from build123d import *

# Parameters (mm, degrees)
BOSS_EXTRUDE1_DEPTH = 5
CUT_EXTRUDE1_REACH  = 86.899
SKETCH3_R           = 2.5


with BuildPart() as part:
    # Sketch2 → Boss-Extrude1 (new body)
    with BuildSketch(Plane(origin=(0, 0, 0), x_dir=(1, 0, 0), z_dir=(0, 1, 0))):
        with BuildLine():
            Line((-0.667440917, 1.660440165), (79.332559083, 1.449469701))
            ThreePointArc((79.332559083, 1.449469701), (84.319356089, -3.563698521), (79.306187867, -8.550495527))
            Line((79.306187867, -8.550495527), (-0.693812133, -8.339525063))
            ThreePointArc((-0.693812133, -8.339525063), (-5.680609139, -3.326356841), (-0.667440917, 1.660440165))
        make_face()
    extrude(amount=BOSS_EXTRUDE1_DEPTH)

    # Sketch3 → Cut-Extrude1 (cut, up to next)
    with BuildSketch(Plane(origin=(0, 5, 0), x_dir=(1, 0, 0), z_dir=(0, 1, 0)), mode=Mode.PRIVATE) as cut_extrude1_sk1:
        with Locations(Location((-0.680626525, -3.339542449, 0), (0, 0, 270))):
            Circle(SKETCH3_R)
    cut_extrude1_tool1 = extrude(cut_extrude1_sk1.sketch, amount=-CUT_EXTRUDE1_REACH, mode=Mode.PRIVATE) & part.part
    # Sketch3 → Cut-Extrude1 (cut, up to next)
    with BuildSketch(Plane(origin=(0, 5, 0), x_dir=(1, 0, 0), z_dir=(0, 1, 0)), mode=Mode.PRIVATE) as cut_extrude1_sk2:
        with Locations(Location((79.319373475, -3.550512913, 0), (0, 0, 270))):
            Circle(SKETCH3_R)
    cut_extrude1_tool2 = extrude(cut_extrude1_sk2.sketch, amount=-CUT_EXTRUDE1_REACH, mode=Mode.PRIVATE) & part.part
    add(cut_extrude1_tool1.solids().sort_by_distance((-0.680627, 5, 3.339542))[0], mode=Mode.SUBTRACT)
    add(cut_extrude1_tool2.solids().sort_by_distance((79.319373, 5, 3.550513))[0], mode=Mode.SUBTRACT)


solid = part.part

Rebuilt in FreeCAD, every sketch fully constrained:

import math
import FreeCAD as App
import Part
import Sketcher

V = App.Vector
Q = App.Units.Quantity

doc = App.newDocument("Part")
params = doc.addObject("Spreadsheet::Sheet", "Params")
for row, (alias, value) in enumerate([
    ("sketch1_radius", "5 mm"),
    ("pad1_length", "5 mm"),
    ("sketch2_diameter", "5 mm"),
    ("sketch3_diameter", "5 mm"),
], start=1):
    params.set(f"A{row}", alias)
    params.set(f"B{row}", "=" + value)
    params.setAlias(f"B{row}", alias)

body = doc.addObject("PartDesign::Body", "Body")

# Sketch on XZ plane
sketch1 = body.newObject("Sketcher::SketchObject", "Sketch")
sketch1.AttachmentSupport = (doc.getObject("XZ_Plane"), [""])
sketch1.MapMode = "FlatFace"
sketch1.addGeometry(Part.LineSegment(V(79, -1, 0), V(-1, -2, 0)), False)
sketch1.addGeometry(Part.ArcOfCircle(Part.Circle(V(-1, 3, 0), V(0, 0, 1), 5), math.radians(90), math.radians(270)), False)
sketch1.addGeometry(Part.LineSegment(V(-1, 8, 0), V(79, 9, 0)), False)
sketch1.addGeometry(Part.ArcOfCircle(Part.Circle(V(79, 4, 0), V(0, 0, 1), 5), math.radians(-90), math.radians(90)), False)
sketch1.addConstraint(Sketcher.Constraint("Tangent", 0, 2, 1, 2))
sketch1.addConstraint(Sketcher.Constraint("Tangent", 1, 1, 2, 1))
sketch1.addConstraint(Sketcher.Constraint("Tangent", 2, 2, 3, 2))
sketch1.addConstraint(Sketcher.Constraint("Tangent", 3, 1, 0, 1))
sketch1.addConstraint(Sketcher.Constraint("Equal", 1, 3))
sketch1.addConstraint(Sketcher.Constraint("Radius", 1, Q("5 mm")))
sketch1.addConstraint(Sketcher.Constraint("DistanceX", 1, 3, 3, 3, Q("80 mm")))
sketch1.addConstraint(Sketcher.Constraint("DistanceX", 0, 2, -1, 1, Q("0.667441 mm")))
sketch1.addConstraint(Sketcher.Constraint("DistanceY", 0, 2, -1, 1, Q("1.66044 mm")))
sketch1.addConstraint(Sketcher.Constraint("DistanceY", 3, 1, -1, 1, Q("1.44947 mm")))
sketch1.setExpression("Constraints[5]", "Params.sketch1_radius")
pad1 = body.newObject("PartDesign::Pad", "Pad")
pad1.Profile = sketch1
pad1.setExpression("Length", "Params.pad1_length")
pad1.Reversed = True

# Sketch on XZ plane
sketch2 = body.newObject("Sketcher::SketchObject", "Sketch001")
sketch2.AttachmentSupport = (doc.getObject("XZ_Plane"), [""])
sketch2.MapMode = "FlatFace"
sketch2.AttachmentOffset = App.Placement(V(0, 0, -5), App.Rotation())
sketch2.addGeometry(Part.Circle(V(-0.7, 3.3, 0), V(0, 0, 1), 2.5), False)
sketch2.addConstraint(Sketcher.Constraint("Diameter", 0, Q("5 mm")))
sketch2.addConstraint(Sketcher.Constraint("DistanceX", 0, 3, -1, 1, Q("0.680627 mm")))
sketch2.addConstraint(Sketcher.Constraint("DistanceY", -1, 1, 0, 3, Q("3.339542 mm")))
sketch2.setExpression("Constraints[0]", "Params.sketch2_diameter")
pocket1 = body.newObject("PartDesign::Pocket", "Pocket")
pocket1.Profile = sketch2
pocket1.Type = "UpToFirst"
pocket1.Reversed = True

# Sketch on XZ plane
sketch3 = body.newObject("Sketcher::SketchObject", "Sketch002")
sketch3.AttachmentSupport = (doc.getObject("XZ_Plane"), [""])
sketch3.MapMode = "FlatFace"
sketch3.AttachmentOffset = App.Placement(V(0, 0, -5), App.Rotation())
sketch3.addGeometry(Part.Circle(V(79.3, 3.6, 0), V(0, 0, 1), 2.5), False)
sketch3.addConstraint(Sketcher.Constraint("Diameter", 0, Q("5 mm")))
sketch3.addConstraint(Sketcher.Constraint("DistanceX", -1, 1, 0, 3, Q("79.319373 mm")))
sketch3.addConstraint(Sketcher.Constraint("DistanceY", -1, 1, 0, 3, Q("3.550513 mm")))
sketch3.setExpression("Constraints[0]", "Params.sketch3_diameter")
pocket2 = body.newObject("PartDesign::Pocket", "Pocket001")
pocket2.Profile = sketch3
pocket2.Type = "UpToFirst"
pocket2.Reversed = True

doc.recompute()
